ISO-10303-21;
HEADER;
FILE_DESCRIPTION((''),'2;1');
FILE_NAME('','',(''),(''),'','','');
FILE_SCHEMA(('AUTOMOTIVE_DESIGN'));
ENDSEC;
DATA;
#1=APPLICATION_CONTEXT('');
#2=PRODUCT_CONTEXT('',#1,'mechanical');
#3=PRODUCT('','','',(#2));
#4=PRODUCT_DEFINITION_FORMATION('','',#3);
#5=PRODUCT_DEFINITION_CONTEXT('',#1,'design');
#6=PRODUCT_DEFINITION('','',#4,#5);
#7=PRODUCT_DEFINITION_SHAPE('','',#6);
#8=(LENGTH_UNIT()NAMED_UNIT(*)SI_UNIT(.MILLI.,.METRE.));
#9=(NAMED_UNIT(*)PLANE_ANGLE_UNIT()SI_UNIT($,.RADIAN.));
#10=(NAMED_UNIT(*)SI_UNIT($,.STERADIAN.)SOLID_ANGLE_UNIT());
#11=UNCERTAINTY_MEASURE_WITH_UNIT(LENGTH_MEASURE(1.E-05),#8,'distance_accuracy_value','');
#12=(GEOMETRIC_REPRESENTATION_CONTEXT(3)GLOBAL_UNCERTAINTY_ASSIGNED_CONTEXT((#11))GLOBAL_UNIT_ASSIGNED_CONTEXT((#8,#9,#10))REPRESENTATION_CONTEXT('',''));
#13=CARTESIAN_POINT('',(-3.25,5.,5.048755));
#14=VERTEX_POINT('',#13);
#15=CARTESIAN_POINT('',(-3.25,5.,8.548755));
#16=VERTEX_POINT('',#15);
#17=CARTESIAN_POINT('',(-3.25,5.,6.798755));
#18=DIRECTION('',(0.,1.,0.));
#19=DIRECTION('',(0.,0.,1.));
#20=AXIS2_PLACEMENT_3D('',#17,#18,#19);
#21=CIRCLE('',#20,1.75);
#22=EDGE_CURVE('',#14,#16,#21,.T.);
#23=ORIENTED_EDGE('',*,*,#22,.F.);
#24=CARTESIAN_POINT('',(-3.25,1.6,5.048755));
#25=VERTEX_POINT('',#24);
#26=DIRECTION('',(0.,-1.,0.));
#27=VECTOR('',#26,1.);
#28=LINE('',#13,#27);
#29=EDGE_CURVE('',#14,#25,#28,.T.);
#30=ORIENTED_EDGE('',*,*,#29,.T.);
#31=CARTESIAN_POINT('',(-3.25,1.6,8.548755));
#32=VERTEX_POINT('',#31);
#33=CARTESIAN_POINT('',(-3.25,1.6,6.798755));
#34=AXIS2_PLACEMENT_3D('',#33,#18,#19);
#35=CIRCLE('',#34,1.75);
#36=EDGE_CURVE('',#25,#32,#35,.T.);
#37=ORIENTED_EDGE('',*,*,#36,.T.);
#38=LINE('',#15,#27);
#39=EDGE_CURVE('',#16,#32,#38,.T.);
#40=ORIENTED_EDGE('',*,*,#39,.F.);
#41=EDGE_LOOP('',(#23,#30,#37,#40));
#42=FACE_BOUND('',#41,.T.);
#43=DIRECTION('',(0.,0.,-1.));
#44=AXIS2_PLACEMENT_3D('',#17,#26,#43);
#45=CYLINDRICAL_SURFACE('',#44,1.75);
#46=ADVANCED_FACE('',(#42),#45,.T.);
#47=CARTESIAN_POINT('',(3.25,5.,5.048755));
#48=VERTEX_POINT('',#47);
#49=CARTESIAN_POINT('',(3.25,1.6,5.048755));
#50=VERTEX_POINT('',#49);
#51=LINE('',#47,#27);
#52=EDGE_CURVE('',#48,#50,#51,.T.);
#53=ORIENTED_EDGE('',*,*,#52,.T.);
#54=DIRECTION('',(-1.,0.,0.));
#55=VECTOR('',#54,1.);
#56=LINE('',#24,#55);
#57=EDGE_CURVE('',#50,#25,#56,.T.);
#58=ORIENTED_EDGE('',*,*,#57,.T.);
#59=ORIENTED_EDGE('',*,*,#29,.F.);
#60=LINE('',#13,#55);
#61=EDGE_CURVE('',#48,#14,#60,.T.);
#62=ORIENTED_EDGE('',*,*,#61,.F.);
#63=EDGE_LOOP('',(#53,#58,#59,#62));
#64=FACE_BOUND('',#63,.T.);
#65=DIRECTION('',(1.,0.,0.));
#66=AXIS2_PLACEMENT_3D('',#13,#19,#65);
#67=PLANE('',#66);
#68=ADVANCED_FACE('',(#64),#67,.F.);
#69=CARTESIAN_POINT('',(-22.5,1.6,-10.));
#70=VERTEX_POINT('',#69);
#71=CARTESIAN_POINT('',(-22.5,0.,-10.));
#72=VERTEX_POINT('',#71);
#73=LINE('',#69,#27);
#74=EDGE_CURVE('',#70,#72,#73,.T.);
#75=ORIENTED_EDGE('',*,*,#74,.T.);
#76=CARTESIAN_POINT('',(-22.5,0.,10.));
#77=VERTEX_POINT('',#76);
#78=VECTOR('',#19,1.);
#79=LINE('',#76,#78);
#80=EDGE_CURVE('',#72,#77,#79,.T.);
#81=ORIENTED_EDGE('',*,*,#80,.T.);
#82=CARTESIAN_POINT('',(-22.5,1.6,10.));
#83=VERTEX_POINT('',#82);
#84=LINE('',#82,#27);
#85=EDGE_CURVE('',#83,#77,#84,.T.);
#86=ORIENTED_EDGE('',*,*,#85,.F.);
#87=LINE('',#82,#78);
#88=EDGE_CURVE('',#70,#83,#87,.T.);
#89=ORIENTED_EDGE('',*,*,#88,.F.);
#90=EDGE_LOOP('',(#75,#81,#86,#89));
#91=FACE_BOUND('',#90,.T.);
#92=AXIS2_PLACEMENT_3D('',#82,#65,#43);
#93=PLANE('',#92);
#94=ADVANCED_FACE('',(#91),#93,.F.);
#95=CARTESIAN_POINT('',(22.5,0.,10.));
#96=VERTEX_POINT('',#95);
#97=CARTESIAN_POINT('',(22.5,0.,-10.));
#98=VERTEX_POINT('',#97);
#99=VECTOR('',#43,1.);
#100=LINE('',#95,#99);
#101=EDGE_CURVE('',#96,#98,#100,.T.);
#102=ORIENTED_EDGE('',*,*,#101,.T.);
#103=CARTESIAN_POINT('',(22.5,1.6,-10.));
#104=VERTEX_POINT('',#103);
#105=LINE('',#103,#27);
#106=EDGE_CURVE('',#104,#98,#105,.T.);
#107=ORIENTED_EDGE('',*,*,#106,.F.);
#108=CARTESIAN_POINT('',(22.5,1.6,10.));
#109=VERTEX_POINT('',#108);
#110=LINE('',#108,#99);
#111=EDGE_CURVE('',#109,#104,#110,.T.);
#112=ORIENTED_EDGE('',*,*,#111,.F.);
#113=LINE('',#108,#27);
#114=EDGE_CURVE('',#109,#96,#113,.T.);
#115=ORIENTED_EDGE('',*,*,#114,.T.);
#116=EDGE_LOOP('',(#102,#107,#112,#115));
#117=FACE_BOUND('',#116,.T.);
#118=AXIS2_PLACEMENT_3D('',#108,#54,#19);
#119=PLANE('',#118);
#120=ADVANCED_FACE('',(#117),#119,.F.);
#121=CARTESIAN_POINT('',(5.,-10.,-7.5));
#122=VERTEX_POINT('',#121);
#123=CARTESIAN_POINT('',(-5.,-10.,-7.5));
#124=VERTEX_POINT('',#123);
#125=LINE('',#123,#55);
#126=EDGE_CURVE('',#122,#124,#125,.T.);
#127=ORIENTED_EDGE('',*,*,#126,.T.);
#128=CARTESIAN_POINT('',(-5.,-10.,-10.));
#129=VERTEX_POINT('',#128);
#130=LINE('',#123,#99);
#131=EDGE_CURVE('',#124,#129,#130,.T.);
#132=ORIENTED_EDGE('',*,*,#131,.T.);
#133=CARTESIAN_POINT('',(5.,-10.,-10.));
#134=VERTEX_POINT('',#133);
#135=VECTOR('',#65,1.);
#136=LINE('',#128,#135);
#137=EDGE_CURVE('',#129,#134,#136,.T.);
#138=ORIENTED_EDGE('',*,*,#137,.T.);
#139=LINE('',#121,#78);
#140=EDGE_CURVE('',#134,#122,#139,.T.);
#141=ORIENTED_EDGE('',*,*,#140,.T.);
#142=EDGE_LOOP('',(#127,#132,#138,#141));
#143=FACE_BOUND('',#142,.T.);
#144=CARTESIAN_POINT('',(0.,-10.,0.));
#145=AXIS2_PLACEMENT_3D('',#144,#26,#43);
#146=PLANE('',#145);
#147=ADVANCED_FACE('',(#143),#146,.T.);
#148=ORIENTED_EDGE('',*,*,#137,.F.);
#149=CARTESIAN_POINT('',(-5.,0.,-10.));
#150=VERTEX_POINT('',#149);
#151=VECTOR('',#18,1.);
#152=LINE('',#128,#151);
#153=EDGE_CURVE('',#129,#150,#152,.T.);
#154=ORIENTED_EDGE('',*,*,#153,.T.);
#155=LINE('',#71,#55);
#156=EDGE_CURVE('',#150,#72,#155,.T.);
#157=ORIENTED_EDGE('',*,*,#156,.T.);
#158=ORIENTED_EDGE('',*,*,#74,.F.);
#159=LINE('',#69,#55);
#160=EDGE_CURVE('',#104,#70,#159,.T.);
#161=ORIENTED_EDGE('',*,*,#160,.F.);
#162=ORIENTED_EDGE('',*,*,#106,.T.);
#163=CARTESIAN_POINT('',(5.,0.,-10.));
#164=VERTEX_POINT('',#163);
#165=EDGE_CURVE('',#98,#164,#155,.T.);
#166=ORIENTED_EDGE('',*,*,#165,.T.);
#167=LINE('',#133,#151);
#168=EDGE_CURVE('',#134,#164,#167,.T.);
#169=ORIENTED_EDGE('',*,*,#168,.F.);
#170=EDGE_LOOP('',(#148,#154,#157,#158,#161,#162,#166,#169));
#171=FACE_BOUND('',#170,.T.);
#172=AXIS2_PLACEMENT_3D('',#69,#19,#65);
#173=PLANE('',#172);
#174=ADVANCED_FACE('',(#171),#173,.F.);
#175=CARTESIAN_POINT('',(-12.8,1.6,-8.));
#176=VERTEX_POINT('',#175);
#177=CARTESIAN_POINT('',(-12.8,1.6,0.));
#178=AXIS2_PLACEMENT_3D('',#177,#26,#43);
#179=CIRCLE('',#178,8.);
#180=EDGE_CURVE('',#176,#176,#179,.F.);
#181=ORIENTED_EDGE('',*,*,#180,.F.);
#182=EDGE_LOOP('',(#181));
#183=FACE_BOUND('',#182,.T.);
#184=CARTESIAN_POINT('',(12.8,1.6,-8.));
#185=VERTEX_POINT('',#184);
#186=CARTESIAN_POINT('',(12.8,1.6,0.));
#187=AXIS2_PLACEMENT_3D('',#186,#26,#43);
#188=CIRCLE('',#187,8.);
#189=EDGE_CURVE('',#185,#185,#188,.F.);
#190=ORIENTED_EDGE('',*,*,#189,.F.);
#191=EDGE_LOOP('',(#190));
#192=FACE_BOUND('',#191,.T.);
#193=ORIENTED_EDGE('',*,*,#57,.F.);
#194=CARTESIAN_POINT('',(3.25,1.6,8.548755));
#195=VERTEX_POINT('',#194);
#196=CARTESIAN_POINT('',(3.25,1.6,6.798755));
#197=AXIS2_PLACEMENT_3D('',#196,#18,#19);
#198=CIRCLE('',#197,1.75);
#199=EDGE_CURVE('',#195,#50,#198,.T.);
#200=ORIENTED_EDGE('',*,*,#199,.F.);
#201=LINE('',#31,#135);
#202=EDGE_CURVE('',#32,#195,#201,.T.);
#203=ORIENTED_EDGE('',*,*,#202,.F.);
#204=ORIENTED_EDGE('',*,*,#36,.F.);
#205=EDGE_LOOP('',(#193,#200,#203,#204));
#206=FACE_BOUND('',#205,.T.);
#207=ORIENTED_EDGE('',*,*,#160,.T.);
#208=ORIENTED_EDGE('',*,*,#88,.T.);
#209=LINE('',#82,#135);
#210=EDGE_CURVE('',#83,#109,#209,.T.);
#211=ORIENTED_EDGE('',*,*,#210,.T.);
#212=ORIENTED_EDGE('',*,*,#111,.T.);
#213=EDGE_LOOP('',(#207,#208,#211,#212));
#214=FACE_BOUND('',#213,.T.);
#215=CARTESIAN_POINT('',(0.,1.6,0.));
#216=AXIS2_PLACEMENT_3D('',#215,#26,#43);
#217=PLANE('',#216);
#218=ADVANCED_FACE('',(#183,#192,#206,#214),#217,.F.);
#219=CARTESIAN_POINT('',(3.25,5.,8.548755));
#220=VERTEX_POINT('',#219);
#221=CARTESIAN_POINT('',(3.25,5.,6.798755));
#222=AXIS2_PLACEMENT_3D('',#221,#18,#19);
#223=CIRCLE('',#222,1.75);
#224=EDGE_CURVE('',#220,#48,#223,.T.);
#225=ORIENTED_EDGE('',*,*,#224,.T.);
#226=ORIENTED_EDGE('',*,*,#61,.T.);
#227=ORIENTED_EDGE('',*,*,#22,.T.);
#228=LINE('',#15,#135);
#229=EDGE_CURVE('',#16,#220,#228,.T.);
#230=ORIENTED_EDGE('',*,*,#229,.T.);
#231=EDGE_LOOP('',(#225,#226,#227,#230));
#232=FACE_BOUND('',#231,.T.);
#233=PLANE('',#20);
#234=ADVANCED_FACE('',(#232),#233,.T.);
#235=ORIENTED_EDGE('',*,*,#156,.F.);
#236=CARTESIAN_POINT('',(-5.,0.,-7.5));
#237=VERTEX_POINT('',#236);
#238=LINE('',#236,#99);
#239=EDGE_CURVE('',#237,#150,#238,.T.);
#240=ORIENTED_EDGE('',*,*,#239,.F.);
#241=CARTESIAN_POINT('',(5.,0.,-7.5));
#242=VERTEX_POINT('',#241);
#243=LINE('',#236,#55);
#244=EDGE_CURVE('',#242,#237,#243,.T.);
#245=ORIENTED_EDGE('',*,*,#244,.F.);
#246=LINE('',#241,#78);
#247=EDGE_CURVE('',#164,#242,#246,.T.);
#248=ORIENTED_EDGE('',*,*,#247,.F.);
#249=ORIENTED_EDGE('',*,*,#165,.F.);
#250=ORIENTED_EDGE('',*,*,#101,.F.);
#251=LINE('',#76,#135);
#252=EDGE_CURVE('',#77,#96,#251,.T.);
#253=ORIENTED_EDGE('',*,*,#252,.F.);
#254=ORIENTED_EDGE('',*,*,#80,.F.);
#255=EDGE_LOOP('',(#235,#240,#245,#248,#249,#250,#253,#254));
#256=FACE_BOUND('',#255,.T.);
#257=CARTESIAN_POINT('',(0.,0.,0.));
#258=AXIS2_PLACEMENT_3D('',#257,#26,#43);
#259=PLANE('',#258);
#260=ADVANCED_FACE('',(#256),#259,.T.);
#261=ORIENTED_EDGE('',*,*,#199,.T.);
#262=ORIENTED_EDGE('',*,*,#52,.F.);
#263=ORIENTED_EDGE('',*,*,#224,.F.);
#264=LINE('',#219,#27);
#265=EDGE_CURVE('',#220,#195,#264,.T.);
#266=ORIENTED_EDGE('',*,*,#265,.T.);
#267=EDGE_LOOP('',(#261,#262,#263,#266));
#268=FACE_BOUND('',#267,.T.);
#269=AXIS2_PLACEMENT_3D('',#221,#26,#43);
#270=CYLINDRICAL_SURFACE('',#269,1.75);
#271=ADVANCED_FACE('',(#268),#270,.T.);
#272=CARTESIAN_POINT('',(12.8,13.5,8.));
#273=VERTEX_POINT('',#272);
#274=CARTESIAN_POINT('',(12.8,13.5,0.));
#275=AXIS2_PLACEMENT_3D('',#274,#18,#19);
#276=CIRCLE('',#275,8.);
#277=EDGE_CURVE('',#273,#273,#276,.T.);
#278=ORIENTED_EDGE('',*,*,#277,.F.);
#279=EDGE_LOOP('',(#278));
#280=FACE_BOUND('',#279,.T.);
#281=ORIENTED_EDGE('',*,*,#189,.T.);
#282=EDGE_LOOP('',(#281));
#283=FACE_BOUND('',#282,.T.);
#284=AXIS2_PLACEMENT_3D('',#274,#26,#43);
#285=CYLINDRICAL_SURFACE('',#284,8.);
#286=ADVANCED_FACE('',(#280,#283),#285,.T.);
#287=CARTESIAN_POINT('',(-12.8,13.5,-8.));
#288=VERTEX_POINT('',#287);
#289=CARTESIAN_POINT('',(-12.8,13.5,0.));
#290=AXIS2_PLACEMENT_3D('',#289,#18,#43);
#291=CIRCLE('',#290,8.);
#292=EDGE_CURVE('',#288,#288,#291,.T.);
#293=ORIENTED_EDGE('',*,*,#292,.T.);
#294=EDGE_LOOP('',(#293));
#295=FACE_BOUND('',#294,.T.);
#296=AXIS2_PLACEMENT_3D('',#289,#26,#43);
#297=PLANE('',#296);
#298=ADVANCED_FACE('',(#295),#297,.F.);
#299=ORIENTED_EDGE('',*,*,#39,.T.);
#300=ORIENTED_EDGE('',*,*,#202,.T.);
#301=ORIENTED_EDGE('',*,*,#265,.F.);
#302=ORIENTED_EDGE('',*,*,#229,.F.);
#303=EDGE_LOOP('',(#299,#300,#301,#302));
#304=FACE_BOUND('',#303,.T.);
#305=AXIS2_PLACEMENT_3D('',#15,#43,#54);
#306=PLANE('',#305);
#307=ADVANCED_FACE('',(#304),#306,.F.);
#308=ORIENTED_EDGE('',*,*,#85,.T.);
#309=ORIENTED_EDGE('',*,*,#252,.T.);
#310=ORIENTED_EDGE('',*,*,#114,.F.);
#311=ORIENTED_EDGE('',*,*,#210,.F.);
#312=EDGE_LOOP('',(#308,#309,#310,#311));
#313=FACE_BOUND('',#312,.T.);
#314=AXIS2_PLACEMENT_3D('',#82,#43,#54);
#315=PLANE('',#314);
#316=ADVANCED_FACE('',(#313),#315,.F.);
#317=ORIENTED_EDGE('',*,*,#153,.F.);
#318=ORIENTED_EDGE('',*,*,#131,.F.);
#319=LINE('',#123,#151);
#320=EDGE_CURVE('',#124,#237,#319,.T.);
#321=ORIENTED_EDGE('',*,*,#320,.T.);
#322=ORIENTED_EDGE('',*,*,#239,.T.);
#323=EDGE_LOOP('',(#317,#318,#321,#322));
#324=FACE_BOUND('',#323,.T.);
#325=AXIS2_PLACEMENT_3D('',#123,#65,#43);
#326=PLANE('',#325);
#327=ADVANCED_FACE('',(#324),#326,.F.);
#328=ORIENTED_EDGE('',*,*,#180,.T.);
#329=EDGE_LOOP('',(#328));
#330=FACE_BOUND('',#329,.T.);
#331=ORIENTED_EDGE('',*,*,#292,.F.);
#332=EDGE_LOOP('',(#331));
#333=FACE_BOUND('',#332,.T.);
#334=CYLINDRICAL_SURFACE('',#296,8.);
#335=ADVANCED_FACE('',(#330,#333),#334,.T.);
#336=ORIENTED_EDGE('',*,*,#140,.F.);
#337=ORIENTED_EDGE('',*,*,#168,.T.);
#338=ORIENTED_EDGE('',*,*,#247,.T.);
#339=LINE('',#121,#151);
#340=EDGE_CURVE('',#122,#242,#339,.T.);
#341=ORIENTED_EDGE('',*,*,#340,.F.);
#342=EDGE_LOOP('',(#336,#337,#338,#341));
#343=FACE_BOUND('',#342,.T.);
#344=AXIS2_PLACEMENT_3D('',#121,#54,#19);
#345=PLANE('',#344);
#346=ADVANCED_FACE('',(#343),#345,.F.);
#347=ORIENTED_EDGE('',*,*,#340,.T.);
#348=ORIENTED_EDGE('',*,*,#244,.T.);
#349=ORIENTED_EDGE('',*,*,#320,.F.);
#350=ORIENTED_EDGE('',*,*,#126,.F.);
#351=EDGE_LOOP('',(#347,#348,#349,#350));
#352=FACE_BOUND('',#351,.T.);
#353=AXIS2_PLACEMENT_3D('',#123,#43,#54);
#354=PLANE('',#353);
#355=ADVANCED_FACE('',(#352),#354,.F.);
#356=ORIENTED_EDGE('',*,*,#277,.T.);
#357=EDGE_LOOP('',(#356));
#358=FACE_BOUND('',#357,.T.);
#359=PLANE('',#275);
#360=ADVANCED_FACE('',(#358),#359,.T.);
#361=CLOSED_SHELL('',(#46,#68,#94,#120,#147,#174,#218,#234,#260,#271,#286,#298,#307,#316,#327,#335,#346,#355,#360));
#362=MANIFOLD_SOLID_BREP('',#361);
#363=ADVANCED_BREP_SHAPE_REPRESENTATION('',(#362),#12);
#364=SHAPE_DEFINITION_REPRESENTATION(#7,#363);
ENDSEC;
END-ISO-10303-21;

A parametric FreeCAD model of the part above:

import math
import FreeCAD as App
import Part
import Sketcher
from FreeCAD import Vector

doc = App.newDocument("Part")
body = doc.addObject("PartDesign::Body", "Body")

sketch1 = body.newObject("Sketcher::SketchObject", "Sketch")
sketch1.AttachmentSupport = (doc.getObject("XZ_Plane"), [""])
sketch1.MapMode = "FlatFace"
sketch1.addGeometry([
    Part.LineSegment(Vector(-22, -10, 0), Vector(-22, 10, 0)),
    Part.LineSegment(Vector(-22, 10, 0), Vector(22, 10, 0)),
    Part.LineSegment(Vector(22, 10, 0), Vector(22, -10, 0)),
    Part.LineSegment(Vector(22, -10, 0), Vector(-22, -10, 0)),
], False)
sketch1.addConstraint([
    Sketcher.Constraint("Coincident", 0, 2, 1, 1),
    Sketcher.Constraint("Coincident", 1, 2, 2, 1),
    Sketcher.Constraint("Coincident", 2, 2, 3, 1),
    Sketcher.Constraint("Coincident", 3, 2, 0, 1),
    Sketcher.Constraint("Vertical", 0),
    Sketcher.Constraint("Horizontal", 1),
    Sketcher.Constraint("Vertical", 2),
    Sketcher.Constraint("Horizontal", 3),
    Sketcher.Constraint("Symmetric", 0, 2, 2, 2, -1, 1),
    Sketcher.Constraint("DistanceX", 1, 1, 1, 2, 45.0),
    Sketcher.Constraint("DistanceY", 0, 1, 0, 2, 20.0),
])
pad1 = body.newObject("PartDesign::Pad", "Pad")
pad1.Profile = sketch1
pad1.Length = 1.6
pad1.Reversed = True

sketch2 = body.newObject("Sketcher::SketchObject", "Sketch001")
sketch2.AttachmentSupport = (doc.getObject("XZ_Plane"), [""])
sketch2.MapMode = "FlatFace"
sketch2.AttachmentOffset = App.Placement(Vector(0, 0, -1.6), App.Rotation())
sketch2.addGeometry([
    Part.Circle(Vector(13, 0, 0), Vector(0, 0, 1), 8),
    Part.Circle(Vector(-13, 0, 0), Vector(0, 0, 1), 8),
], False)
sketch2.addConstraint([
    Sketcher.Constraint("Equal", 0, 1),
    Sketcher.Constraint("Symmetric", 0, 3, 1, 3, -1, 1),
    Sketcher.Constraint("PointOnObject", 0, 3, -1),
    Sketcher.Constraint("Diameter", 0, 16.0),
    Sketcher.Constraint("DistanceX", -1, 1, 0, 3, 12.8),
])
pad2 = body.newObject("PartDesign::Pad", "Pad001")
pad2.Profile = sketch2
pad2.Length = 11.9
pad2.Reversed = True

sketch3 = body.newObject("Sketcher::SketchObject", "Sketch002")
sketch3.AttachmentSupport = (doc.getObject("XZ_Plane"), [""])
sketch3.MapMode = "FlatFace"
sketch3.AttachmentOffset = App.Placement(Vector(0, 0, -1.6), App.Rotation())
sketch3.addGeometry([
    Part.LineSegment(Vector(3.2, 5, 0), Vector(-3.2, 5, 0)),
    Part.ArcOfCircle(Part.Circle(Vector(-3.2, 6.8, 0), Vector(0, 0, 1), 1.8), math.radians(90), math.radians(270)),
    Part.LineSegment(Vector(-3.2, 8.5, 0), Vector(3.2, 8.5, 0)),
    Part.ArcOfCircle(Part.Circle(Vector(3.2, 6.8, 0), Vector(0, 0, 1), 1.8), math.radians(-90), math.radians(90)),
], False)
sketch3.addConstraint([
    Sketcher.Constraint("Tangent", 0, 2, 1, 2),
    Sketcher.Constraint("Tangent", 1, 1, 2, 1),
    Sketcher.Constraint("Tangent", 2, 2, 3, 2),
    Sketcher.Constraint("Tangent", 3, 1, 0, 1),
    Sketcher.Constraint("Horizontal", 0),
    Sketcher.Constraint("Horizontal", 2),
    Sketcher.Constraint("Radius", 1, 1.75),
    Sketcher.Constraint("DistanceX", 0, 2, 0, 1, 6.5),
    Sketcher.Constraint("DistanceX", 1, 3, -1, 1, 3.25),
    Sketcher.Constraint("DistanceY", -1, 1, 1, 3, 6.798755),
])
pad3 = body.newObject("PartDesign::Pad", "Pad002")
pad3.Profile = sketch3
pad3.Length = 3.4
pad3.Reversed = True

sketch4 = body.newObject("Sketcher::SketchObject", "Sketch003")
sketch4.AttachmentSupport = (doc.getObject("XZ_Plane"), [""])
sketch4.MapMode = "FlatFace"
sketch4.addGeometry([
    Part.LineSegment(Vector(-5, -7.5, 0), Vector(-5, -10, 0)),
    Part.LineSegment(Vector(-5, -10, 0), Vector(5, -10, 0)),
    Part.LineSegment(Vector(5, -10, 0), Vector(5, -7.5, 0)),
    Part.LineSegment(Vector(5, -7.5, 0), Vector(-5, -7.5, 0)),
], False)
sketch4.addConstraint([
    Sketcher.Constraint("Coincident", 0, 2, 1, 1),
    Sketcher.Constraint("Coincident", 1, 2, 2, 1),
    Sketcher.Constraint("Coincident", 2, 2, 3, 1),
    Sketcher.Constraint("Coincident", 3, 2, 0, 1),
    Sketcher.Constraint("Vertical", 0),
    Sketcher.Constraint("Horizontal", 1),
    Sketcher.Constraint("Vertical", 2),
    Sketcher.Constraint("Horizontal", 3),
    Sketcher.Constraint("DistanceX", 1, 1, 1, 2, 10.0),
    Sketcher.Constraint("DistanceY", 0, 2, 0, 1, 2.5),
    Sketcher.Constraint("DistanceX", 0, 2, -1, 1, 5.0),
    Sketcher.Constraint("DistanceY", 0, 2, -1, 1, 10.0),
])
pad4 = body.newObject("PartDesign::Pad", "Pad003")
pad4.Profile = sketch4
pad4.Length = 10

doc.recompute()
